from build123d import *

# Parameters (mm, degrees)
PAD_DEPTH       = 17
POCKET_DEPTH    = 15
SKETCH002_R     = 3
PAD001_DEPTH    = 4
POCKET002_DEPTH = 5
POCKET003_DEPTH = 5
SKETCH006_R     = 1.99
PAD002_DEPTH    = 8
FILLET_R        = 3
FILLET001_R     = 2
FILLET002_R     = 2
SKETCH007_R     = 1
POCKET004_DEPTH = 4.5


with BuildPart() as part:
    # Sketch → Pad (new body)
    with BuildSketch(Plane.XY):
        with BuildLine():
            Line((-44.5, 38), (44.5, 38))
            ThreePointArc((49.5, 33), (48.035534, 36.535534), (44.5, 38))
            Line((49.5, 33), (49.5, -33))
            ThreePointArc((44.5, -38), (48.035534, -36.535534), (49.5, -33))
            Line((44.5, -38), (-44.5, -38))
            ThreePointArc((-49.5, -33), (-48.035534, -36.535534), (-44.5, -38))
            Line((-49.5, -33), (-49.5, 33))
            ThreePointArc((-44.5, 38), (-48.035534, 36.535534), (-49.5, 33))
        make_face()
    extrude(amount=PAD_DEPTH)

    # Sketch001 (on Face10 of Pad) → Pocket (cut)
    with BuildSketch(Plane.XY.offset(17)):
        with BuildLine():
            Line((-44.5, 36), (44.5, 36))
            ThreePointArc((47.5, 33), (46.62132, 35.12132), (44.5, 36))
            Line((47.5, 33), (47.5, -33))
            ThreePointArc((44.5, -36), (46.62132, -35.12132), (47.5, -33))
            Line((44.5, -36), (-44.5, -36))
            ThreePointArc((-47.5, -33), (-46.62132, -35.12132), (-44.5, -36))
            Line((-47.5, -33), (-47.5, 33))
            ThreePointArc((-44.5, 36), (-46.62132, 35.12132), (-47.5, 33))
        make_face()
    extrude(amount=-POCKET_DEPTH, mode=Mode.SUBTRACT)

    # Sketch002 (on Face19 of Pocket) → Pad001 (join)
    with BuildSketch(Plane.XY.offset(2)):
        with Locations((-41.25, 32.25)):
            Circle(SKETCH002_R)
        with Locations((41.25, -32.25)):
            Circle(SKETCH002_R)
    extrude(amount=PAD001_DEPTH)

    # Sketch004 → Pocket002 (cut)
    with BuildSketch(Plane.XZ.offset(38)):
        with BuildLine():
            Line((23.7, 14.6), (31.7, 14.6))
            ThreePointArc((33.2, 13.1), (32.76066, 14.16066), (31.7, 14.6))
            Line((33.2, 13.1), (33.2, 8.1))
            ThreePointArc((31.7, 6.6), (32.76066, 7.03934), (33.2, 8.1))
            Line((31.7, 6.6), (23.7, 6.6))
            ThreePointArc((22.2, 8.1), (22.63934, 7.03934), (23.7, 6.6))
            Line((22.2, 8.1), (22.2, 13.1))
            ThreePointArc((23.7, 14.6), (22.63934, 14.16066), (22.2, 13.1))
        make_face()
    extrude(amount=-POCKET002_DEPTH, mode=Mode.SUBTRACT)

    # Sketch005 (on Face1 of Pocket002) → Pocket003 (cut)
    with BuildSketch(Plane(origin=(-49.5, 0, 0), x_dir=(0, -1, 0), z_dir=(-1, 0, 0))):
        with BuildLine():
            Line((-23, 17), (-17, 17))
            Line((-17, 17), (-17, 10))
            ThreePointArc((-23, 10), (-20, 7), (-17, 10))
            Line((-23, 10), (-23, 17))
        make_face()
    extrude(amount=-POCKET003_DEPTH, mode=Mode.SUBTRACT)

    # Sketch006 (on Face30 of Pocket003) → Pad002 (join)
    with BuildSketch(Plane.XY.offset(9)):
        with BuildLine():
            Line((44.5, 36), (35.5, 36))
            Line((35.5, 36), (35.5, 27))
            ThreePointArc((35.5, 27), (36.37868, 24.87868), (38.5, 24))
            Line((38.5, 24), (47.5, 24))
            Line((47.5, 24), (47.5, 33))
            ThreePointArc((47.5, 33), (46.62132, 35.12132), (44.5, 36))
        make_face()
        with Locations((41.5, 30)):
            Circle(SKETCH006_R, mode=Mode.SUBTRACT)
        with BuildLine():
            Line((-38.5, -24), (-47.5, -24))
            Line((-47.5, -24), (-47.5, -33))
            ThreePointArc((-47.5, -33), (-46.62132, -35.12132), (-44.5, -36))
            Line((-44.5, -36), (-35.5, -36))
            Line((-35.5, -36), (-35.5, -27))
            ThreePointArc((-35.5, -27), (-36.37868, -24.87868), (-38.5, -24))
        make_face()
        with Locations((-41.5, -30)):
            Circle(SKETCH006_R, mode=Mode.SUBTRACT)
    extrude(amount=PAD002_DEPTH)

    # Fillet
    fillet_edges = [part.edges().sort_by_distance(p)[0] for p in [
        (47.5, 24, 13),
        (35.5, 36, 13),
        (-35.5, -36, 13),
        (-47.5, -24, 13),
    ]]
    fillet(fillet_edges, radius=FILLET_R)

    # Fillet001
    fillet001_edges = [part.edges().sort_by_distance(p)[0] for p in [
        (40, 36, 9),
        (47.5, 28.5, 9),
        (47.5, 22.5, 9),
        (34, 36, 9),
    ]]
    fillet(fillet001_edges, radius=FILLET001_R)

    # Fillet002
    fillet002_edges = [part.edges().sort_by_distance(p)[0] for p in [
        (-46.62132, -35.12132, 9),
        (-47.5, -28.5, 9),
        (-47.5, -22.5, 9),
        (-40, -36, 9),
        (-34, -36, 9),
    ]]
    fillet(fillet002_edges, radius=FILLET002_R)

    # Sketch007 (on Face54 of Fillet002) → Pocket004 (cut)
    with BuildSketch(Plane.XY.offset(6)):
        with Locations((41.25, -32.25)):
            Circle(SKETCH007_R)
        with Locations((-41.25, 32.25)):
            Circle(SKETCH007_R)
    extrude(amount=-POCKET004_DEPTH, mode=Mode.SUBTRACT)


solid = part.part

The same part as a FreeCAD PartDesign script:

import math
import FreeCAD as App
import Part
import Sketcher
Q = App.Units.Quantity


def edges_at(feature, points):
    """Names of the edges that pass closest to the given points."""
    edges = feature.Shape.Edges
    near = lambda p: min(range(len(edges)), key=lambda i: edges[i].distToShape(Part.Vertex(*p))[0])
    return sorted({f"Edge{near(p) + 1}" for p in points})

doc = App.newDocument("Part")
body = doc.addObject("PartDesign::Body", "Body")

# Sketch on XY plane
sketch1 = body.newObject("Sketcher::SketchObject", "Sketch")
sketch1.AttachmentSupport = (doc.getObject("XY_Plane"), [""])
sketch1.MapMode = "FlatFace"
sketch1.addGeometry(Part.LineSegment(App.Vector(44.5, 38, 0), App.Vector(-44.5, 38, 0)), False)
sketch1.addGeometry(Part.ArcOfCircle(Part.Circle(App.Vector(-44.5, 33, 0), App.Vector(0, 0, 1), 5), math.radians(90), math.radians(180)), False)
sketch1.addGeometry(Part.LineSegment(App.Vector(-49.5, 33, 0), App.Vector(-49.5, -33, 0)), False)
sketch1.addGeometry(Part.ArcOfCircle(Part.Circle(App.Vector(-44.5, -33, 0), App.Vector(0, 0, 1), 5), math.radians(180), math.radians(270)), False)
sketch1.addGeometry(Part.LineSegment(App.Vector(-44.5, -38, 0), App.Vector(44.5, -38, 0)), False)
sketch1.addGeometry(Part.ArcOfCircle(Part.Circle(App.Vector(44.5, -33, 0), App.Vector(0, 0, 1), 5), math.radians(-90), math.radians(0)), False)
sketch1.addGeometry(Part.LineSegment(App.Vector(49.5, -33, 0), App.Vector(49.5, 33, 0)), False)
sketch1.addGeometry(Part.ArcOfCircle(Part.Circle(App.Vector(44.5, 33, 0), App.Vector(0, 0, 1), 5), math.radians(0), math.radians(90)), False)
sketch1.addConstraint(Sketcher.Constraint("Tangent", 0, 2, 1, 1))
sketch1.addConstraint(Sketcher.Constraint("Tangent", 1, 2, 2, 1))
sketch1.addConstraint(Sketcher.Constraint("Tangent", 2, 2, 3, 1))
sketch1.addConstraint(Sketcher.Constraint("Tangent", 3, 2, 4, 1))
sketch1.addConstraint(Sketcher.Constraint("Tangent", 4, 2, 5, 1))
sketch1.addConstraint(Sketcher.Constraint("Tangent", 5, 2, 6, 1))
sketch1.addConstraint(Sketcher.Constraint("Tangent", 6, 2, 7, 1))
sketch1.addConstraint(Sketcher.Constraint("Tangent", 7, 2, 0, 1))
sketch1.addConstraint(Sketcher.Constraint("Horizontal", 0))
sketch1.addConstraint(Sketcher.Constraint("Vertical", 2))
sketch1.addConstraint(Sketcher.Constraint("Horizontal", 4))
sketch1.addConstraint(Sketcher.Constraint("Vertical", 6))
sketch1.addConstraint(Sketcher.Constraint("Equal", 1, 3))
sketch1.addConstraint(Sketcher.Constraint("Equal", 3, 5))
sketch1.addConstraint(Sketcher.Constraint("Equal", 5, 7))
sketch1.addConstraint(Sketcher.Constraint("Symmetric", 1, 3, 5, 3, -1, 1))
sketch1.addConstraint(Sketcher.Constraint("Radius", 1, Q("5 mm")))
sketch1.addConstraint(Sketcher.Constraint("DistanceX", 0, 2, 0, 1, Q("89 mm")))
sketch1.addConstraint(Sketcher.Constraint("DistanceY", 2, 2, 2, 1, Q("66 mm")))
pad1 = body.newObject("PartDesign::Pad", "Pad")
pad1.Profile = sketch1
pad1.Length = 17

# Sketch on XY plane
sketch2 = body.newObject("Sketcher::SketchObject", "Sketch001")
sketch2.AttachmentSupport = (doc.getObject("XY_Plane"), [""])
sketch2.MapMode = "FlatFace"
sketch2.AttachmentOffset = App.Placement(App.Vector(0, 0, 17), App.Rotation())
sketch2.addGeometry(Part.LineSegment(App.Vector(44.5, 36, 0), App.Vector(-44.5, 36, 0)), False)
sketch2.addGeometry(Part.ArcOfCircle(Part.Circle(App.Vector(-44.5, 33, 0), App.Vector(0, 0, 1), 3), math.radians(90), math.radians(180)), False)
sketch2.addGeometry(Part.LineSegment(App.Vector(-47.5, 33, 0), App.Vector(-47.5, -33, 0)), False)
sketch2.addGeometry(Part.ArcOfCircle(Part.Circle(App.Vector(-44.5, -33, 0), App.Vector(0, 0, 1), 3), math.radians(-180), math.radians(-90)), False)
sketch2.addGeometry(Part.LineSegment(App.Vector(-44.5, -36, 0), App.Vector(44.5, -36, 0)), False)
sketch2.addGeometry(Part.ArcOfCircle(Part.Circle(App.Vector(44.5, -33, 0), App.Vector(0, 0, 1), 3), math.radians(-90), math.radians(0)), False)
sketch2.addGeometry(Part.LineSegment(App.Vector(47.5, -33, 0), App.Vector(47.5, 33, 0)), False)
sketch2.addGeometry(Part.ArcOfCircle(Part.Circle(App.Vector(44.5, 33, 0), App.Vector(0, 0, 1), 3), math.radians(0), math.radians(90)), False)
sketch2.addConstraint(Sketcher.Constraint("Tangent", 0, 2, 1, 1))
sketch2.addConstraint(Sketcher.Constraint("Tangent", 1, 2, 2, 1))
sketch2.addConstraint(Sketcher.Constraint("Tangent", 2, 2, 3, 1))
sketch2.addConstraint(Sketcher.Constraint("Tangent", 3, 2, 4, 1))
sketch2.addConstraint(Sketcher.Constraint("Tangent", 4, 2, 5, 1))
sketch2.addConstraint(Sketcher.Constraint("Tangent", 5, 2, 6, 1))
sketch2.addConstraint(Sketcher.Constraint("Tangent", 6, 2, 7, 1))
sketch2.addConstraint(Sketcher.Constraint("Tangent", 7, 2, 0, 1))
sketch2.addConstraint(Sketcher.Constraint("Horizontal", 0))
sketch2.addConstraint(Sketcher.Constraint("Vertical", 2))
sketch2.addConstraint(Sketcher.Constraint("Horizontal", 4))
sketch2.addConstraint(Sketcher.Constraint("Vertical", 6))
sketch2.addConstraint(Sketcher.Constraint("Equal", 1, 3))
sketch2.addConstraint(Sketcher.Constraint("Equal", 3, 5))
sketch2.addConstraint(Sketcher.Constraint("Equal", 5, 7))
sketch2.addConstraint(Sketcher.Constraint("Symmetric", 1, 3, 5, 3, -1, 1))
sketch2.addConstraint(Sketcher.Constraint("Radius", 1, Q("3.000001 mm")))
sketch2.addConstraint(Sketcher.Constraint("DistanceX", 0, 2, 0, 1, Q("89 mm")))
sketch2.addConstraint(Sketcher.Constraint("DistanceY", 2, 2, 2, 1, Q("66 mm")))
pocket1 = body.newObject("PartDesign::Pocket", "Pocket")
pocket1.Profile = sketch2
pocket1.Length = 15

# Sketch on XY plane
sketch3 = body.newObject("Sketcher::SketchObject", "Sketch002")
sketch3.AttachmentSupport = (doc.getObject("XY_Plane"), [""])
sketch3.MapMode = "FlatFace"
sketch3.AttachmentOffset = App.Placement(App.Vector(0, 0, 2), App.Rotation())
sketch3.addGeometry(Part.Circle(App.Vector(-41.2, 32.2, 0), App.Vector(0, 0, 1), 3), False)
sketch3.addGeometry(Part.Circle(App.Vector(41.2, -32.2, 0), App.Vector(0, 0, 1), 3), False)
sketch3.addConstraint(Sketcher.Constraint("Equal", 0, 1))
sketch3.addConstraint(Sketcher.Constraint("Symmetric", 0, 3, 1, 3, -1, 1))
sketch3.addConstraint(Sketcher.Constraint("Diameter", 0, Q("6 mm")))
sketch3.addConstraint(Sketcher.Constraint("DistanceX", 0, 3, 1, 3, Q("82.5 mm")))
sketch3.addConstraint(Sketcher.Constraint("DistanceY", 1, 3, 0, 3, Q("64.5 mm")))
pad2 = body.newObject("PartDesign::Pad", "Pad001")
pad2.Profile = sketch3
pad2.Length = 4

# Sketch on XZ plane
sketch4 = body.newObject("Sketcher::SketchObject", "Sketch003")
sketch4.AttachmentSupport = (doc.getObject("XZ_Plane"), [""])
sketch4.MapMode = "FlatFace"
sketch4.AttachmentOffset = App.Placement(App.Vector(0, 0, 38), App.Rotation())
sketch4.addGeometry(Part.LineSegment(App.Vector(31.7, 14.6, 0), App.Vector(23.7, 14.6, 0)), False)
sketch4.addGeometry(Part.ArcOfCircle(Part.Circle(App.Vector(23.7, 13.1, 0), App.Vector(0, 0, 1), 1.5), math.radians(90), math.radians(180)), False)
sketch4.addGeometry(Part.LineSegment(App.Vector(22.2, 13.1, 0), App.Vector(22.2, 8.1, 0)), False)
sketch4.addGeometry(Part.ArcOfCircle(Part.Circle(App.Vector(23.7, 8.1, 0), App.Vector(0, 0, 1), 1.5), math.radians(-180), math.radians(-90)), False)
sketch4.addGeometry(Part.LineSegment(App.Vector(23.7, 6.6, 0), App.Vector(31.7, 6.6, 0)), False)
sketch4.addGeometry(Part.ArcOfCircle(Part.Circle(App.Vector(31.7, 8.1, 0), App.Vector(0, 0, 1), 1.5), math.radians(-90), math.radians(0)), False)
sketch4.addGeometry(Part.LineSegment(App.Vector(33.2, 8.1, 0), App.Vector(33.2, 13.1, 0)), False)
sketch4.addGeometry(Part.ArcOfCircle(Part.Circle(App.Vector(31.7, 13.1, 0), App.Vector(0, 0, 1), 1.5), math.radians(0), math.radians(90)), False)
sketch4.addConstraint(Sketcher.Constraint("Tangent", 0, 2, 1, 1))
sketch4.addConstraint(Sketcher.Constraint("Tangent", 1, 2, 2, 1))
sketch4.addConstraint(Sketcher.Constraint("Tangent", 2, 2, 3, 1))
sketch4.addConstraint(Sketcher.Constraint("Tangent", 3, 2, 4, 1))
sketch4.addConstraint(Sketcher.Constraint("Tangent", 4, 2, 5, 1))
sketch4.addConstraint(Sketcher.Constraint("Tangent", 5, 2, 6, 1))
sketch4.addConstraint(Sketcher.Constraint("Tangent", 6, 2, 7, 1))
sketch4.addConstraint(Sketcher.Constraint("Tangent", 7, 2, 0, 1))
sketch4.addConstraint(Sketcher.Constraint("Horizontal", 0))
sketch4.addConstraint(Sketcher.Constraint("Vertical", 2))
sketch4.addConstraint(Sketcher.Constraint("Horizontal", 4))
sketch4.addConstraint(Sketcher.Constraint("Vertical", 6))
sketch4.addConstraint(Sketcher.Constraint("Equal", 1, 3))
sketch4.addConstraint(Sketcher.Constraint("Equal", 3, 5))
sketch4.addConstraint(Sketcher.Constraint("Equal", 5, 7))
sketch4.addConstraint(Sketcher.Constraint("Radius", 1, Q("1.500001 mm")))
sketch4.addConstraint(Sketcher.Constraint("DistanceX", 0, 2, 0, 1, Q("8 mm")))
sketch4.addConstraint(Sketcher.Constraint("DistanceY", 2, 2, 2, 1, Q("5 mm")))
sketch4.addConstraint(Sketcher.Constraint("DistanceX", -1, 1, 1, 3, Q("23.700001 mm")))
sketch4.addConstraint(Sketcher.Constraint("DistanceY", -1, 1, 1, 3, Q("13.099999 mm")))
pocket2 = body.newObject("PartDesign::Pocket", "Pocket001")
pocket2.Profile = sketch4
pocket2.Length = 5

# Sketch on YZ plane
sketch5 = body.newObject("Sketcher::SketchObject", "Sketch004")
sketch5.AttachmentSupport = (doc.getObject("YZ_Plane"), [""])
sketch5.MapMode = "FlatFace"
sketch5.AttachmentOffset = App.Placement(App.Vector(0, 0, -49.5), App.Rotation())
sketch5.addGeometry(Part.LineSegment(App.Vector(17, 17, 0), App.Vector(23, 17, 0)), False)
sketch5.addGeometry(Part.LineSegment(App.Vector(23, 17, 0), App.Vector(23, 10, 0)), False)
sketch5.addGeometry(Part.ArcOfCircle(Part.Circle(App.Vector(20, 10, 0), App.Vector(0, 0, 1), 3), math.radians(180), math.radians(360)), False)
sketch5.addGeometry(Part.LineSegment(App.Vector(17, 10, 0), App.Vector(17, 17, 0)), False)
sketch5.addConstraint(Sketcher.Constraint("Coincident", 0, 2, 1, 1))
sketch5.addConstraint(Sketcher.Constraint("Tangent", 1, 2, 2, 2))
sketch5.addConstraint(Sketcher.Constraint("Tangent", 2, 1, 3, 1))
sketch5.addConstraint(Sketcher.Constraint("Coincident", 3, 2, 0, 1))
sketch5.addConstraint(Sketcher.Constraint("Horizontal", 0))
sketch5.addConstraint(Sketcher.Constraint("Vertical", 1))
sketch5.addConstraint(Sketcher.Constraint("Vertical", 3))
sketch5.addConstraint(Sketcher.Constraint("Radius", 2, Q("3 mm")))
sketch5.addConstraint(Sketcher.Constraint("DistanceY", 1, 2, 1, 1, Q("7 mm")))
sketch5.addConstraint(Sketcher.Constraint("DistanceX", -1, 1, 2, 3, Q("20 mm")))
sketch5.addConstraint(Sketcher.Constraint("DistanceY", -1, 1, 2, 3, Q("10 mm")))
pocket3 = body.newObject("PartDesign::Pocket", "Pocket002")
pocket3.Profile = sketch5
pocket3.Length = 5
pocket3.Reversed = True

# Sketch on XY plane
sketch6 = body.newObject("Sketcher::SketchObject", "Sketch005")
sketch6.AttachmentSupport = (doc.getObject("XY_Plane"), [""])
sketch6.MapMode = "FlatFace"
sketch6.AttachmentOffset = App.Placement(App.Vector(0, 0, 9), App.Rotation())
sketch6.addGeometry(Part.LineSegment(App.Vector(44.5, 36, 0), App.Vector(35.5, 36, 0)), False)
sketch6.addGeometry(Part.LineSegment(App.Vector(35.5, 36, 0), App.Vector(35.5, 27, 0)), False)
sketch6.addGeometry(Part.ArcOfCircle(Part.Circle(App.Vector(38.5, 27, 0), App.Vector(0, 0, 1), 3), math.radians(-180), math.radians(-90)), False)
sketch6.addGeometry(Part.LineSegment(App.Vector(38.5, 24, 0), App.Vector(47.5, 24, 0)), False)
sketch6.addGeometry(Part.LineSegment(App.Vector(47.5, 24, 0), App.Vector(47.5, 33, 0)), False)
sketch6.addGeometry(Part.ArcOfCircle(Part.Circle(App.Vector(44.5, 33, 0), App.Vector(0, 0, 1), 3), math.radians(0), math.radians(90)), False)
sketch6.addGeometry(Part.Circle(App.Vector(41.5, 30, 0), App.Vector(0, 0, 1), 2), False)
sketch6.addGeometry(Part.LineSegment(App.Vector(-38.5, -24, 0), App.Vector(-47.5, -24, 0)), False)
sketch6.addGeometry(Part.LineSegment(App.Vector(-47.5, -24, 0), App.Vector(-47.5, -33, 0)), False)
sketch6.addGeometry(Part.ArcOfCircle(Part.Circle(App.Vector(-44.5, -33, 0), App.Vector(0, 0, 1), 3), math.radians(-180), math.radians(-90)), False)
sketch6.addGeometry(Part.LineSegment(App.Vector(-44.5, -36, 0), App.Vector(-35.5, -36, 0)), False)
sketch6.addGeometry(Part.LineSegment(App.Vector(-35.5, -36, 0), App.Vector(-35.5, -27, 0)), False)
sketch6.addGeometry(Part.ArcOfCircle(Part.Circle(App.Vector(-38.5, -27, 0), App.Vector(0, 0, 1), 3), math.radians(0), math.radians(90)), False)
sketch6.addGeometry(Part.Circle(App.Vector(-41.5, -30, 0), App.Vector(0, 0, 1), 2), False)
sketch6.addConstraint(Sketcher.Constraint("Coincident", 0, 2, 1, 1))
sketch6.addConstraint(Sketcher.Constraint("Tangent", 1, 2, 2, 1))
sketch6.addConstraint(Sketcher.Constraint("Tangent", 2, 2, 3, 1))
sketch6.addConstraint(Sketcher.Constraint("Coincident", 3, 2, 4, 1))
sketch6.addConstraint(Sketcher.Constraint("Tangent", 4, 2, 5, 1))
sketch6.addConstraint(Sketcher.Constraint("Tangent", 5, 2, 0, 1))
sketch6.addConstraint(Sketcher.Constraint("Coincident", 7, 2, 8, 1))
sketch6.addConstraint(Sketcher.Constraint("Tangent", 8, 2, 9, 1))
sketch6.addConstraint(Sketcher.Constraint("Tangent", 9, 2, 10, 1))
sketch6.addConstraint(Sketcher.Constraint("Coincident", 10, 2, 11, 1))
sketch6.addConstraint(Sketcher.Constraint("Tangent", 11, 2, 12, 1))
sketch6.addConstraint(Sketcher.Constraint("Tangent", 12, 2, 7, 1))
sketch6.addConstraint(Sketcher.Constraint("Horizontal", 0))
sketch6.addConstraint(Sketcher.Constraint("Vertical", 1))
sketch6.addConstraint(Sketcher.Constraint("Horizontal", 3))
sketch6.addConstraint(Sketcher.Constraint("Vertical", 4))
sketch6.addConstraint(Sketcher.Constraint("Horizontal", 7))
sketch6.addConstraint(Sketcher.Constraint("Vertical", 8))
sketch6.addConstraint(Sketcher.Constraint("Horizontal", 10))
sketch6.addConstraint(Sketcher.Constraint("Vertical", 11))
sketch6.addConstraint(Sketcher.Constraint("Equal", 2, 5))
sketch6.addConstraint(Sketcher.Constraint("Equal", 5, 9))
sketch6.addConstraint(Sketcher.Constraint("Equal", 9, 12))
sketch6.addConstraint(Sketcher.Constraint("Equal", 6, 13))
sketch6.addConstraint(Sketcher.Constraint("Symmetric", 5, 3, 9, 3, -1, 1))
sketch6.addConstraint(Sketcher.Constraint("Symmetric", 2, 3, 12, 3, -1, 1))
sketch6.addConstraint(Sketcher.Constraint("Symmetric", 6, 3, 13, 3, -1, 1))
sketch6.addConstraint(Sketcher.Constraint("Equal", 10, 1))
sketch6.addConstraint(Sketcher.Constraint("Radius", 2, Q("3.000001 mm")))
sketch6.addConstraint(Sketcher.Constraint("Diameter", 6, Q("3.98 mm")))
sketch6.addConstraint(Sketcher.Constraint("DistanceX", 0, 2, 0, 1, Q("9 mm")))
sketch6.addConstraint(Sketcher.Constraint("DistanceY", -1, 1, 2, 3, Q("27.000001 mm")))
sketch6.addConstraint(Sketcher.Constraint("DistanceY", -1, 1, 6, 3, Q("30 mm")))
sketch6.addConstraint(Sketcher.Constraint("DistanceX", 2, 3, 6, 3, Q("2.999999 mm")))
sketch6.addConstraint(Sketcher.Constraint("DistanceX", 9, 3, 2, 3, Q("83 mm")))
pad3 = body.newObject("PartDesign::Pad", "Pad002")
pad3.Profile = sketch6
pad3.Length = 8
doc.recompute()

fillet = body.newObject("PartDesign::Fillet", "Fillet")
fillet.Base = (pad3, edges_at(pad3, [
    (47.5, 24, 13),
    (35.5, 36, 13),
    (-35.5, -36, 13),
    (-47.5, -24, 13),
]))
fillet.Radius = 3
doc.recompute()

fillet2 = body.newObject("PartDesign::Fillet", "Fillet001")
fillet2.Base = (fillet, edges_at(fillet, [
    (38.5, 36, 9),
    (47.5, 27, 9),
    (47.5, 27, 9),
    (38.5, 36, 9),
]))
fillet2.Radius = 2
doc.recompute()

fillet3 = body.newObject("PartDesign::Fillet", "Fillet002")
fillet3.Base = (fillet2, edges_at(fillet2, [
    (-46.621, -35.121, 9),
    (-47.5, -27, 9),
    (-47.5, -27, 9),
    (-38.5, -36, 9),
    (-38.5, -36, 9),
]))
fillet3.Radius = 2

# Sketch on XY plane
sketch7 = body.newObject("Sketcher::SketchObject", "Sketch006")
sketch7.AttachmentSupport = (doc.getObject("XY_Plane"), [""])
sketch7.MapMode = "FlatFace"
sketch7.AttachmentOffset = App.Placement(App.Vector(0, 0, 6), App.Rotation())
sketch7.addGeometry(Part.Circle(App.Vector(41.2, -32.2, 0), App.Vector(0, 0, 1), 1), False)
sketch7.addGeometry(Part.Circle(App.Vector(-41.2, 32.2, 0), App.Vector(0, 0, 1), 1), False)
sketch7.addConstraint(Sketcher.Constraint("Equal", 0, 1))
sketch7.addConstraint(Sketcher.Constraint("Symmetric", 0, 3, 1, 3, -1, 1))
sketch7.addConstraint(Sketcher.Constraint("Diameter", 0, Q("2 mm")))
sketch7.addConstraint(Sketcher.Constraint("DistanceX", 1, 3, 0, 3, Q("82.5 mm")))
sketch7.addConstraint(Sketcher.Constraint("DistanceY", 0, 3, 1, 3, Q("64.5 mm")))
pocket4 = body.newObject("PartDesign::Pocket", "Pocket003")
pocket4.Profile = sketch7
pocket4.Length = 4.5

doc.recompute()
